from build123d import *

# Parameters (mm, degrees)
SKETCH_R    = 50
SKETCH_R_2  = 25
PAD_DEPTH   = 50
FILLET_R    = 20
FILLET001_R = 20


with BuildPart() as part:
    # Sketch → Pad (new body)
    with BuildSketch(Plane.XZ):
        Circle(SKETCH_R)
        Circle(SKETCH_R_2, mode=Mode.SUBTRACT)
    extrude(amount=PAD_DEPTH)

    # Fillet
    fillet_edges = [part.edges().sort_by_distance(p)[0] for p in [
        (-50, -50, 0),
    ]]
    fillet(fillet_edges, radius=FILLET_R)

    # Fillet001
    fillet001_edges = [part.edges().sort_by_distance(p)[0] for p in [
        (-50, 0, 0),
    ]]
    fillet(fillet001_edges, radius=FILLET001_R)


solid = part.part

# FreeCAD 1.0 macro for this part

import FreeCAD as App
import Part
import Sketcher

V = App.Vector


def edges_at(feature, points):
    """Names of the edges that pass closest to the given points."""
    edges = feature.Shape.Edges
    near = lambda p: min(range(len(edges)), key=lambda i: edges[i].distToShape(Part.Vertex(*p))[0])
    return sorted({f"Edge{near(p) + 1}" for p in points})

doc = App.newDocument("Part")
body = doc.addObject("PartDesign::Body", "Body")

# Sketch on XZ plane
sketch1 = doc.addObject("Sketcher::SketchObject", "Sketch")
body.addObject(sketch1)
sketch1.AttachmentSupport = (doc.XZ_Plane, [""])
sketch1.MapMode = "FlatFace"
sketch1.addGeometry([
    Part.Circle(V(0, 0, 0), V(0, 0, 1), 50),
    Part.Circle(V(0, 0, 0), V(0, 0, 1), 25),
], False)
sketch1.addConstraint([
    Sketcher.Constraint("Coincident", 0, 3, -1, 1),
    Sketcher.Constraint("Coincident", 1, 3, -1, 1),
    Sketcher.Constraint("Diameter", 0, 100.0),
    Sketcher.Constraint("Diameter", 1, 50.0),
])
pad1 = doc.addObject("PartDesign::Pad", "Pad")
body.addObject(pad1)
pad1.Profile = sketch1
pad1.Length = 50
doc.recompute()

fillet = doc.addObject("PartDesign::Fillet", "Fillet")
body.addObject(fillet)
fillet.Base = (pad1, edges_at(pad1, [(-50, -50, 0)]))
fillet.Radius = 20
doc.recompute()

fillet2 = doc.addObject("PartDesign::Fillet", "Fillet001")
body.addObject(fillet2)
fillet2.Base = (fillet, edges_at(fillet, [(-50, 0, 0)]))
fillet2.Radius = 20

doc.recompute()
